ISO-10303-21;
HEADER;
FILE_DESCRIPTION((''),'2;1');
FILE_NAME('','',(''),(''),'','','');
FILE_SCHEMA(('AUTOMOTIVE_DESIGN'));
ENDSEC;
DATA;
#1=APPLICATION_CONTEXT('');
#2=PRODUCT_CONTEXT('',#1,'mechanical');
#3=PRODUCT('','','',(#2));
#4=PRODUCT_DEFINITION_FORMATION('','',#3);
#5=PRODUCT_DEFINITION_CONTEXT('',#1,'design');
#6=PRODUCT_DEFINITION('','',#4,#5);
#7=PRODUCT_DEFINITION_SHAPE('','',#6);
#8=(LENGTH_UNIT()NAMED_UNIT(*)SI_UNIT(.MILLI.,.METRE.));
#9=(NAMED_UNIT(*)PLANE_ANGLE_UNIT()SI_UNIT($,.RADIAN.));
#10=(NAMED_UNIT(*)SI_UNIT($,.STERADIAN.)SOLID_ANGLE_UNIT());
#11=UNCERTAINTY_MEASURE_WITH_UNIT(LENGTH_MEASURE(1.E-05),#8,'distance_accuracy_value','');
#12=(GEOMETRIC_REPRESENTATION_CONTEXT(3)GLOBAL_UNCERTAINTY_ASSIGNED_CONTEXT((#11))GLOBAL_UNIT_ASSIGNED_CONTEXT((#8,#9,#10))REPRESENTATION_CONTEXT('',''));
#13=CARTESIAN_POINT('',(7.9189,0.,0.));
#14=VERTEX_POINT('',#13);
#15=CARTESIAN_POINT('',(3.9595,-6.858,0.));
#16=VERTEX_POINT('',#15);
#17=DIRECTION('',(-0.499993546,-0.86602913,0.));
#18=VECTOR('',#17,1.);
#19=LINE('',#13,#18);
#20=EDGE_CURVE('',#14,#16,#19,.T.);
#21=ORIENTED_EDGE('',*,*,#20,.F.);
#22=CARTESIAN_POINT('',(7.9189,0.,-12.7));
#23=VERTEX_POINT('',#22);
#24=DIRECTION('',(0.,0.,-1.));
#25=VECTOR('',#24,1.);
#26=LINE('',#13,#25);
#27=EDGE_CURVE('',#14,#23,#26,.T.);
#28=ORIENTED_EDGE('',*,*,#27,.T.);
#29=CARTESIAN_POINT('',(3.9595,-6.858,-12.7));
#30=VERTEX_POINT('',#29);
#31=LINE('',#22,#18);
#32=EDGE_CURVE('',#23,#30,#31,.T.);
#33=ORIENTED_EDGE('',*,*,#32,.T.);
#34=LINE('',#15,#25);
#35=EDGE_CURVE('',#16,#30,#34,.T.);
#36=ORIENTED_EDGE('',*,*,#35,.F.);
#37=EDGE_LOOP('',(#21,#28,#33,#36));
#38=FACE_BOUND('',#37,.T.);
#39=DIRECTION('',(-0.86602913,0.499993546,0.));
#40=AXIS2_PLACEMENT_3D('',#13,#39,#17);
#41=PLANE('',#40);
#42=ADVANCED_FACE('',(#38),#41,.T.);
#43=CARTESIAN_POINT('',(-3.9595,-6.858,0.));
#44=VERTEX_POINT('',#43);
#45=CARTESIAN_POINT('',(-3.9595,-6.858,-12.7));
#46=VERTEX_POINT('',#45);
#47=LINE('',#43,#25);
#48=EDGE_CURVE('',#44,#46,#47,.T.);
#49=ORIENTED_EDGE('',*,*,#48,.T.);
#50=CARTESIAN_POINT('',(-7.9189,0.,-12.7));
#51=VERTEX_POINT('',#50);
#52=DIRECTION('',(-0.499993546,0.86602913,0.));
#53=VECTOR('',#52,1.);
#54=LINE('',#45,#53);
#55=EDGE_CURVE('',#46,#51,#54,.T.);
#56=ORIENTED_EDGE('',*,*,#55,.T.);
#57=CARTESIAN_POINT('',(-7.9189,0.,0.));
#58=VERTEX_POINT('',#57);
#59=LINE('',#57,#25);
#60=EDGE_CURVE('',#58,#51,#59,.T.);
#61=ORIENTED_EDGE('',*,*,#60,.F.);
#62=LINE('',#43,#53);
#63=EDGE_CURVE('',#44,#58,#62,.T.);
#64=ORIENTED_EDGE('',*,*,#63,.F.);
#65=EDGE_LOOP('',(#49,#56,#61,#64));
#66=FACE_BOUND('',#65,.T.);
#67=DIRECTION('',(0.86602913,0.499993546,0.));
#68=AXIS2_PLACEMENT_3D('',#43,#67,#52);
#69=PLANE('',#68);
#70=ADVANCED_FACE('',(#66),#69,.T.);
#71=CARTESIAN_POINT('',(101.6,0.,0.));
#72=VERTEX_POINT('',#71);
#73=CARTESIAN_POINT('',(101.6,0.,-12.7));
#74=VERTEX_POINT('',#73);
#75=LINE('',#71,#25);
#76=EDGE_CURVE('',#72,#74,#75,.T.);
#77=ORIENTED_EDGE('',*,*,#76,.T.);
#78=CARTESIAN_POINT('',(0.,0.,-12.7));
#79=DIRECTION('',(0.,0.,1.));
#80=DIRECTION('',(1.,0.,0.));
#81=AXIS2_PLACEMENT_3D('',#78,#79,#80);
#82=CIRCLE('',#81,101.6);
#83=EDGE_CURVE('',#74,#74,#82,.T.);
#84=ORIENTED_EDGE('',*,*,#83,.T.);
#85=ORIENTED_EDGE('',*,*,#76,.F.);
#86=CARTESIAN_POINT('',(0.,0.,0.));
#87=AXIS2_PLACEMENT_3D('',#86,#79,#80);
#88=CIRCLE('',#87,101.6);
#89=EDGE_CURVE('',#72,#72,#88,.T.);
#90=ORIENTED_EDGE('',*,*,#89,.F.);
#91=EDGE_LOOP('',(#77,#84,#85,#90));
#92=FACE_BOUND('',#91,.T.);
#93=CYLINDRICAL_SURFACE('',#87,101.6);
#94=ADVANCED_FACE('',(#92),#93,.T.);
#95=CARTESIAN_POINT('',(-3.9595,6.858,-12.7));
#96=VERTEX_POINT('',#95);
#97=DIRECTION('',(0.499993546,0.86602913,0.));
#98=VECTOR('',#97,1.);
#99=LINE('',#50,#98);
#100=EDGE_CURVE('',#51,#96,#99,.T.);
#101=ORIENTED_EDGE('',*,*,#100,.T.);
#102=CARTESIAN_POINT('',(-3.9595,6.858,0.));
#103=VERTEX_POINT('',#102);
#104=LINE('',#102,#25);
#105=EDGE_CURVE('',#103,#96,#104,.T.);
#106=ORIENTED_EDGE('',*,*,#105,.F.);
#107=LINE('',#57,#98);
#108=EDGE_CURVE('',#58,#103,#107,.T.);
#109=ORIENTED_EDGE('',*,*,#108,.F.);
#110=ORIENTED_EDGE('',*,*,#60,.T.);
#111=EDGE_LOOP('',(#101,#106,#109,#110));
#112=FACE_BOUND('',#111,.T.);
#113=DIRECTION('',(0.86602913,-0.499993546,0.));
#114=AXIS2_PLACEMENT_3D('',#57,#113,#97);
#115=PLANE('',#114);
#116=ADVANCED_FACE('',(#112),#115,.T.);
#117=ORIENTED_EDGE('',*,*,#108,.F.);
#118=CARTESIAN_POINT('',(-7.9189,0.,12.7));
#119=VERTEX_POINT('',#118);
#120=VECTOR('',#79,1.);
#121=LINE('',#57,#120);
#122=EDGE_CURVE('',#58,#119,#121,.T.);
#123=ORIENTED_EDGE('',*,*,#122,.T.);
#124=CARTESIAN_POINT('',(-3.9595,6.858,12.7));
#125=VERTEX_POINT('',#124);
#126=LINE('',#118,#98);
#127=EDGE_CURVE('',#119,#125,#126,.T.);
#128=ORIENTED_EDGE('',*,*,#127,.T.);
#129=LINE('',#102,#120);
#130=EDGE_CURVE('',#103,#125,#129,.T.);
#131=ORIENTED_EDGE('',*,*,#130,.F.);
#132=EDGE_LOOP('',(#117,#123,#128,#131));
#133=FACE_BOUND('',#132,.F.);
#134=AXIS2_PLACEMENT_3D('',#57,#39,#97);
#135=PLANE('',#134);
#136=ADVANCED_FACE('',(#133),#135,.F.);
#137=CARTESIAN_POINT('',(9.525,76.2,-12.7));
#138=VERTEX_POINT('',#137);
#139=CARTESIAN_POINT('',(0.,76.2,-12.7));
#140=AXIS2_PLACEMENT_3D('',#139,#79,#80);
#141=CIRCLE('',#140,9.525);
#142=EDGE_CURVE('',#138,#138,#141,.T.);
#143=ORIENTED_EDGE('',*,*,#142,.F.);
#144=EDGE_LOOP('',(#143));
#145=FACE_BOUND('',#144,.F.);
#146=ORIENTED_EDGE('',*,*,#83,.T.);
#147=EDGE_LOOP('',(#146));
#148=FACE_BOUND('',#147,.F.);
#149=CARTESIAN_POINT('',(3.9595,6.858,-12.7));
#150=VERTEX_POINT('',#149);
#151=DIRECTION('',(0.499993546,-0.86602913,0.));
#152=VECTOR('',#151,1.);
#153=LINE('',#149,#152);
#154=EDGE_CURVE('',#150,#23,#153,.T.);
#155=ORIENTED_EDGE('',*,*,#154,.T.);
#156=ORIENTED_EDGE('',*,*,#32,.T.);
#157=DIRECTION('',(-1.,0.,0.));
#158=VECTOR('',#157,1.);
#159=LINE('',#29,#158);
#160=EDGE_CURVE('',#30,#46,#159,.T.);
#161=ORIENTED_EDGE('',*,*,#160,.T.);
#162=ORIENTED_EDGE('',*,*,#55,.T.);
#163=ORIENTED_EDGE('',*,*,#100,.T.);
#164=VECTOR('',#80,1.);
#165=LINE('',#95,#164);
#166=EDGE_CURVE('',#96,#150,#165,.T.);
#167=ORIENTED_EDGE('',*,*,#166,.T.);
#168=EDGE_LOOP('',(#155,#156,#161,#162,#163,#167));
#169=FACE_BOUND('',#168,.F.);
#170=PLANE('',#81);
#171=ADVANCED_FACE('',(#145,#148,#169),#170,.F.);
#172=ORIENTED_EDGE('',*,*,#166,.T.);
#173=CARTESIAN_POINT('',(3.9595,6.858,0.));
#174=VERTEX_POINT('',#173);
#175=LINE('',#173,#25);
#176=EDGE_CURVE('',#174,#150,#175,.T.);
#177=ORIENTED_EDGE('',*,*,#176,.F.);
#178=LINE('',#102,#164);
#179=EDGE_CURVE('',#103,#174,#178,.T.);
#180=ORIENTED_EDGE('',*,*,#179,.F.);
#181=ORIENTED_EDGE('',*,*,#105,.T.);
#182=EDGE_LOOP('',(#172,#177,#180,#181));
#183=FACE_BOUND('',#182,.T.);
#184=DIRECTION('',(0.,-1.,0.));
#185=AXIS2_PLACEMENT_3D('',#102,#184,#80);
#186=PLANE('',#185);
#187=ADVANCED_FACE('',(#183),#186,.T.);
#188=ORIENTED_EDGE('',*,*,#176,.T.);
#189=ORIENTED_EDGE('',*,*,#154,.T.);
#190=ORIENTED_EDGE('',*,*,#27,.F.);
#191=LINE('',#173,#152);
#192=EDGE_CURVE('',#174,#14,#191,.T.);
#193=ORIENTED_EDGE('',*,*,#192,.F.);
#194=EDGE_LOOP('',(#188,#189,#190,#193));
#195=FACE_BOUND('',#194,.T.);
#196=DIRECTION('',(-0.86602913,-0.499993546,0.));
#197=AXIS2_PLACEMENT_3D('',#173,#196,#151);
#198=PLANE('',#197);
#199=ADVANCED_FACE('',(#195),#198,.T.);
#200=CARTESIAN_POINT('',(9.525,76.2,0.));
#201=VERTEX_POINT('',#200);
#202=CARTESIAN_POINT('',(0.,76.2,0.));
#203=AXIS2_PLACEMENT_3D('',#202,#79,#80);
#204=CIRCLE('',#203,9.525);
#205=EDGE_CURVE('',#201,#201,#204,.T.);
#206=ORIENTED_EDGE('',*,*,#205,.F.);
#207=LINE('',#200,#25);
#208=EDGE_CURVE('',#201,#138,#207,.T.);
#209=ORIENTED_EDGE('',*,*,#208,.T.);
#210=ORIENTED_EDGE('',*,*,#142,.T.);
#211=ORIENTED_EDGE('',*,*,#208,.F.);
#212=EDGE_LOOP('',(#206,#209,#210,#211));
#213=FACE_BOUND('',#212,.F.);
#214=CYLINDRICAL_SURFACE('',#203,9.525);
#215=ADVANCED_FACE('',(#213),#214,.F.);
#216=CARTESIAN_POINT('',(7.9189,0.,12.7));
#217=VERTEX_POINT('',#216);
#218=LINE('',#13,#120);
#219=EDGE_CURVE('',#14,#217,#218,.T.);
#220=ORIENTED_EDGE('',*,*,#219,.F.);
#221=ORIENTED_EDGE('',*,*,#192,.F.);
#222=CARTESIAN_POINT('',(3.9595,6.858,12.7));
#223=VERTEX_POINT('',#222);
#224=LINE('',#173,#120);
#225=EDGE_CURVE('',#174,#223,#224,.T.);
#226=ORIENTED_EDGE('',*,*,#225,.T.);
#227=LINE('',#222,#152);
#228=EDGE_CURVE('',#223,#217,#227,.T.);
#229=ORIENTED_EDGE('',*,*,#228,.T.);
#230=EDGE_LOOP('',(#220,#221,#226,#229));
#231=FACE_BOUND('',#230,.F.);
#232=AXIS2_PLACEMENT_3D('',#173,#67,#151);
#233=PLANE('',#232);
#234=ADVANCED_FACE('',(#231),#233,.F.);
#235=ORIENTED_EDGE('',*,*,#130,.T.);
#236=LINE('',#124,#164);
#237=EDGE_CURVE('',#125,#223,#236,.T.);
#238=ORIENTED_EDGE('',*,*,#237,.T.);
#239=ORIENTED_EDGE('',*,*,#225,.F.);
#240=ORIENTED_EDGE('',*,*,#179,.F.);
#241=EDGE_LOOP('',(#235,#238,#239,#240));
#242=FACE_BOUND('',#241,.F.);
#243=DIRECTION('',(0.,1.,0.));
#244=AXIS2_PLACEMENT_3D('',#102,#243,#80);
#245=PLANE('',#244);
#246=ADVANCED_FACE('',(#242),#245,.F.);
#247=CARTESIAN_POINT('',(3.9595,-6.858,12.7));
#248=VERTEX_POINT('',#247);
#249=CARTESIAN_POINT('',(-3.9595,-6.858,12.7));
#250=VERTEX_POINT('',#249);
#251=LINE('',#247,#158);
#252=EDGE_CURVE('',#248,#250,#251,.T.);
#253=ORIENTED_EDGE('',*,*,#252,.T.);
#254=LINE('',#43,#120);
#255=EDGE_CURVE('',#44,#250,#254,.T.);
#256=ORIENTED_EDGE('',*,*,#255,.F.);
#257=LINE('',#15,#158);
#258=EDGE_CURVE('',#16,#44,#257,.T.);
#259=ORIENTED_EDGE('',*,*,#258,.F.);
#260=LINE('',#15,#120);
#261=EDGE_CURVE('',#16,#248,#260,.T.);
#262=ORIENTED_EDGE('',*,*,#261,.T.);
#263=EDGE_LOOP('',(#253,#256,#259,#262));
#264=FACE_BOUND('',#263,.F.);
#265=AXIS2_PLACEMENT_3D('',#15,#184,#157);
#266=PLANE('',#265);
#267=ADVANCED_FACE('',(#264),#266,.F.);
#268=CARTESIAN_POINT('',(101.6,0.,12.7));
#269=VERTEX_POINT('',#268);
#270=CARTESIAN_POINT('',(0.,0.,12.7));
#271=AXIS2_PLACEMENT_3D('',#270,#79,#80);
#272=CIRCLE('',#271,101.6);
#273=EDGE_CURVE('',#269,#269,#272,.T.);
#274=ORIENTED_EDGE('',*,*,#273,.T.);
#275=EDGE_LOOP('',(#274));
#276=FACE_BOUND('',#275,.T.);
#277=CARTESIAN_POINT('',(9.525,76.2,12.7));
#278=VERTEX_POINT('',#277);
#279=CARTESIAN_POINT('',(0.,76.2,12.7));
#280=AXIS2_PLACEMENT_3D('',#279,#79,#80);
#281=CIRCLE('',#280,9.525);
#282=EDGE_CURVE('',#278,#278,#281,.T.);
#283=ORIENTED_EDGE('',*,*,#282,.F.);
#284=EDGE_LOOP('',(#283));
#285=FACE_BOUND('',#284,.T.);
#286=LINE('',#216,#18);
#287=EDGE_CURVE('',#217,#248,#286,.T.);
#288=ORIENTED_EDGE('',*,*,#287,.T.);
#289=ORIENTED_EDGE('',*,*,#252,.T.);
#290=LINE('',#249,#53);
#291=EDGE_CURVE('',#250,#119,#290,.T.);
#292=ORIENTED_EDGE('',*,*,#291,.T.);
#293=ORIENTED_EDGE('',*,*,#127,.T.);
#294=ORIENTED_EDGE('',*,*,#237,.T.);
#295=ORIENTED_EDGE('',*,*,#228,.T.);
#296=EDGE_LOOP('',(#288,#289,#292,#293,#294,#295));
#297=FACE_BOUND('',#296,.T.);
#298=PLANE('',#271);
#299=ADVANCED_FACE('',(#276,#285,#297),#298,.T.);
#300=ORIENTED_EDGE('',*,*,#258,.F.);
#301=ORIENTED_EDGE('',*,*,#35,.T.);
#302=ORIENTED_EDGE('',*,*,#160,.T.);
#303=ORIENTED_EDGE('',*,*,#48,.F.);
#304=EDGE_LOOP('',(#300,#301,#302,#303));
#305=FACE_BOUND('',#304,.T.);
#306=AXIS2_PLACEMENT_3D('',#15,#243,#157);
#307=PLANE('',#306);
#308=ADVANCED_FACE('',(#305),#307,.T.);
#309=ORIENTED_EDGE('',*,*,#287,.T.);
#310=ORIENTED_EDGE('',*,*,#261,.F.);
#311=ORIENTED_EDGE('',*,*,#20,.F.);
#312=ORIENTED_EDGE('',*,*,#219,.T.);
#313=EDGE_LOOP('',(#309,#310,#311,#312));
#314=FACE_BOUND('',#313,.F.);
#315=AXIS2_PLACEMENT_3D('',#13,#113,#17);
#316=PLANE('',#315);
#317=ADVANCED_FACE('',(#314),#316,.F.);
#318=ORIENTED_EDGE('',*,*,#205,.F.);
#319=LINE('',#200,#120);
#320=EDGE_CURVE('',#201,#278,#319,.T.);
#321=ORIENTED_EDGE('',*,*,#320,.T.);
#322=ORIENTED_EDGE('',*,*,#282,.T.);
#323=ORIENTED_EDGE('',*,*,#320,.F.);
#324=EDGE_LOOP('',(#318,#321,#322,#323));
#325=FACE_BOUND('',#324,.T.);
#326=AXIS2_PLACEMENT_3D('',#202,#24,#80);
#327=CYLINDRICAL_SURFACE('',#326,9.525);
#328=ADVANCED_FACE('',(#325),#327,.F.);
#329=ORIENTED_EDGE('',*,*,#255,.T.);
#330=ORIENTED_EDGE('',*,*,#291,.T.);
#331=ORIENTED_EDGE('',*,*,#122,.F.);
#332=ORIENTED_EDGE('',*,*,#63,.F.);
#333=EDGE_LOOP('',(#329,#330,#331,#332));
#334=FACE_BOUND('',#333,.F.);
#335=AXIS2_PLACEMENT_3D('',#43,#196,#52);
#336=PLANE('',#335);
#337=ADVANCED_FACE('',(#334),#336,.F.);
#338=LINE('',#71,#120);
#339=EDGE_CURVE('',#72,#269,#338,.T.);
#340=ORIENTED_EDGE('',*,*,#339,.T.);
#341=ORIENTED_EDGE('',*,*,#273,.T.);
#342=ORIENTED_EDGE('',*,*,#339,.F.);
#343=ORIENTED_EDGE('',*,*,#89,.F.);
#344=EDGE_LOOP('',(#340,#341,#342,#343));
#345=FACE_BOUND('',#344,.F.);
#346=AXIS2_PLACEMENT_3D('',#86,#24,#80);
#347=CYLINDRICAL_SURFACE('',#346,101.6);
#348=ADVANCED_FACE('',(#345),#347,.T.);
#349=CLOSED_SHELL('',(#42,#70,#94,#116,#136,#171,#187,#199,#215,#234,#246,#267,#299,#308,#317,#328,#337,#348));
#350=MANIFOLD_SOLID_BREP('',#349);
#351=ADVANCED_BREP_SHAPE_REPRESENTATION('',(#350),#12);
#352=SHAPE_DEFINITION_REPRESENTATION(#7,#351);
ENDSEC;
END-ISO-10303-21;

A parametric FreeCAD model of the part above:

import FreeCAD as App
import Part
import Sketcher

V = App.Vector
Q = App.Units.Quantity

doc = App.newDocument("Part")
body = doc.addObject("PartDesign::Body", "Body")

# Sketch on XY plane
sketch1 = doc.addObject("Sketcher::SketchObject", "Sketch")
body.addObject(sketch1)
sketch1.AttachmentSupport = (doc.XY_Plane, [""])
sketch1.MapMode = "FlatFace"
sketch1.addGeometry(Part.Circle(V(0, 0, 0), V(0, 0, 1), 102), False)
sketch1.addGeometry(Part.LineSegment(V(4, 7, 0), V(8, 0, 0)), False)
sketch1.addGeometry(Part.LineSegment(V(8, 0, 0), V(4, -7, 0)), False)
sketch1.addGeometry(Part.LineSegment(V(4, -7, 0), V(-4, -7, 0)), False)
sketch1.addGeometry(Part.LineSegment(V(-4, -7, 0), V(-8, 0, 0)), False)
sketch1.addGeometry(Part.LineSegment(V(-8, 0, 0), V(-4, 7, 0)), False)
sketch1.addGeometry(Part.LineSegment(V(-4, 7, 0), V(4, 7, 0)), False)
sketch1.addGeometry(Part.Circle(V(0, 76, 0), V(0, 0, 1), 10), False)
sketch1.addConstraint(Sketcher.Constraint("Coincident", 1, 2, 2, 1))
sketch1.addConstraint(Sketcher.Constraint("Coincident", 2, 2, 3, 1))
sketch1.addConstraint(Sketcher.Constraint("Coincident", 3, 2, 4, 1))
sketch1.addConstraint(Sketcher.Constraint("Coincident", 4, 2, 5, 1))
sketch1.addConstraint(Sketcher.Constraint("Coincident", 5, 2, 6, 1))
sketch1.addConstraint(Sketcher.Constraint("Coincident", 6, 2, 1, 1))
sketch1.addConstraint(Sketcher.Constraint("Horizontal", 3))
sketch1.addConstraint(Sketcher.Constraint("Horizontal", 6))
sketch1.addConstraint(Sketcher.Constraint("Coincident", 0, 3, -1, 1))
sketch1.addConstraint(Sketcher.Constraint("Symmetric", 1, 2, 4, 2, -1, 1))
sketch1.addConstraint(Sketcher.Constraint("Symmetric", 2, 2, 5, 2, -1, 1))
sketch1.addConstraint(Sketcher.Constraint("PointOnObject", 7, 3, -2))
sketch1.addConstraint(Sketcher.Constraint("PointOnObject", 1, 2, -1))
sketch1.addConstraint(Sketcher.Constraint("Parallel", 1, 4))
sketch1.addConstraint(Sketcher.Constraint("Vertical", 3, 2, 5, 2))
sketch1.addConstraint(Sketcher.Constraint("Diameter", 0, Q("8 in")))
sketch1.addConstraint(Sketcher.Constraint("Diameter", 7, Q("0.75 in")))
sketch1.addConstraint(Sketcher.Constraint("DistanceY", -1, 1, 7, 3, Q("3 in")))
sketch1.addConstraint(Sketcher.Constraint("DistanceY", 3, 2, 5, 2, Q("0.54 in")))
sketch1.addConstraint(Sketcher.Constraint("Angle", 1, Q("-60.0004 deg")))
sketch1.addConstraint(Sketcher.Constraint("DistanceX", 3, 2, 3, 1, 7.919))
pad1 = doc.addObject("PartDesign::Pad", "Pad")
body.addObject(pad1)
pad1.Profile = sketch1
pad1.Length = Q("1 in")
pad1.Midplane = True

doc.recompute()
